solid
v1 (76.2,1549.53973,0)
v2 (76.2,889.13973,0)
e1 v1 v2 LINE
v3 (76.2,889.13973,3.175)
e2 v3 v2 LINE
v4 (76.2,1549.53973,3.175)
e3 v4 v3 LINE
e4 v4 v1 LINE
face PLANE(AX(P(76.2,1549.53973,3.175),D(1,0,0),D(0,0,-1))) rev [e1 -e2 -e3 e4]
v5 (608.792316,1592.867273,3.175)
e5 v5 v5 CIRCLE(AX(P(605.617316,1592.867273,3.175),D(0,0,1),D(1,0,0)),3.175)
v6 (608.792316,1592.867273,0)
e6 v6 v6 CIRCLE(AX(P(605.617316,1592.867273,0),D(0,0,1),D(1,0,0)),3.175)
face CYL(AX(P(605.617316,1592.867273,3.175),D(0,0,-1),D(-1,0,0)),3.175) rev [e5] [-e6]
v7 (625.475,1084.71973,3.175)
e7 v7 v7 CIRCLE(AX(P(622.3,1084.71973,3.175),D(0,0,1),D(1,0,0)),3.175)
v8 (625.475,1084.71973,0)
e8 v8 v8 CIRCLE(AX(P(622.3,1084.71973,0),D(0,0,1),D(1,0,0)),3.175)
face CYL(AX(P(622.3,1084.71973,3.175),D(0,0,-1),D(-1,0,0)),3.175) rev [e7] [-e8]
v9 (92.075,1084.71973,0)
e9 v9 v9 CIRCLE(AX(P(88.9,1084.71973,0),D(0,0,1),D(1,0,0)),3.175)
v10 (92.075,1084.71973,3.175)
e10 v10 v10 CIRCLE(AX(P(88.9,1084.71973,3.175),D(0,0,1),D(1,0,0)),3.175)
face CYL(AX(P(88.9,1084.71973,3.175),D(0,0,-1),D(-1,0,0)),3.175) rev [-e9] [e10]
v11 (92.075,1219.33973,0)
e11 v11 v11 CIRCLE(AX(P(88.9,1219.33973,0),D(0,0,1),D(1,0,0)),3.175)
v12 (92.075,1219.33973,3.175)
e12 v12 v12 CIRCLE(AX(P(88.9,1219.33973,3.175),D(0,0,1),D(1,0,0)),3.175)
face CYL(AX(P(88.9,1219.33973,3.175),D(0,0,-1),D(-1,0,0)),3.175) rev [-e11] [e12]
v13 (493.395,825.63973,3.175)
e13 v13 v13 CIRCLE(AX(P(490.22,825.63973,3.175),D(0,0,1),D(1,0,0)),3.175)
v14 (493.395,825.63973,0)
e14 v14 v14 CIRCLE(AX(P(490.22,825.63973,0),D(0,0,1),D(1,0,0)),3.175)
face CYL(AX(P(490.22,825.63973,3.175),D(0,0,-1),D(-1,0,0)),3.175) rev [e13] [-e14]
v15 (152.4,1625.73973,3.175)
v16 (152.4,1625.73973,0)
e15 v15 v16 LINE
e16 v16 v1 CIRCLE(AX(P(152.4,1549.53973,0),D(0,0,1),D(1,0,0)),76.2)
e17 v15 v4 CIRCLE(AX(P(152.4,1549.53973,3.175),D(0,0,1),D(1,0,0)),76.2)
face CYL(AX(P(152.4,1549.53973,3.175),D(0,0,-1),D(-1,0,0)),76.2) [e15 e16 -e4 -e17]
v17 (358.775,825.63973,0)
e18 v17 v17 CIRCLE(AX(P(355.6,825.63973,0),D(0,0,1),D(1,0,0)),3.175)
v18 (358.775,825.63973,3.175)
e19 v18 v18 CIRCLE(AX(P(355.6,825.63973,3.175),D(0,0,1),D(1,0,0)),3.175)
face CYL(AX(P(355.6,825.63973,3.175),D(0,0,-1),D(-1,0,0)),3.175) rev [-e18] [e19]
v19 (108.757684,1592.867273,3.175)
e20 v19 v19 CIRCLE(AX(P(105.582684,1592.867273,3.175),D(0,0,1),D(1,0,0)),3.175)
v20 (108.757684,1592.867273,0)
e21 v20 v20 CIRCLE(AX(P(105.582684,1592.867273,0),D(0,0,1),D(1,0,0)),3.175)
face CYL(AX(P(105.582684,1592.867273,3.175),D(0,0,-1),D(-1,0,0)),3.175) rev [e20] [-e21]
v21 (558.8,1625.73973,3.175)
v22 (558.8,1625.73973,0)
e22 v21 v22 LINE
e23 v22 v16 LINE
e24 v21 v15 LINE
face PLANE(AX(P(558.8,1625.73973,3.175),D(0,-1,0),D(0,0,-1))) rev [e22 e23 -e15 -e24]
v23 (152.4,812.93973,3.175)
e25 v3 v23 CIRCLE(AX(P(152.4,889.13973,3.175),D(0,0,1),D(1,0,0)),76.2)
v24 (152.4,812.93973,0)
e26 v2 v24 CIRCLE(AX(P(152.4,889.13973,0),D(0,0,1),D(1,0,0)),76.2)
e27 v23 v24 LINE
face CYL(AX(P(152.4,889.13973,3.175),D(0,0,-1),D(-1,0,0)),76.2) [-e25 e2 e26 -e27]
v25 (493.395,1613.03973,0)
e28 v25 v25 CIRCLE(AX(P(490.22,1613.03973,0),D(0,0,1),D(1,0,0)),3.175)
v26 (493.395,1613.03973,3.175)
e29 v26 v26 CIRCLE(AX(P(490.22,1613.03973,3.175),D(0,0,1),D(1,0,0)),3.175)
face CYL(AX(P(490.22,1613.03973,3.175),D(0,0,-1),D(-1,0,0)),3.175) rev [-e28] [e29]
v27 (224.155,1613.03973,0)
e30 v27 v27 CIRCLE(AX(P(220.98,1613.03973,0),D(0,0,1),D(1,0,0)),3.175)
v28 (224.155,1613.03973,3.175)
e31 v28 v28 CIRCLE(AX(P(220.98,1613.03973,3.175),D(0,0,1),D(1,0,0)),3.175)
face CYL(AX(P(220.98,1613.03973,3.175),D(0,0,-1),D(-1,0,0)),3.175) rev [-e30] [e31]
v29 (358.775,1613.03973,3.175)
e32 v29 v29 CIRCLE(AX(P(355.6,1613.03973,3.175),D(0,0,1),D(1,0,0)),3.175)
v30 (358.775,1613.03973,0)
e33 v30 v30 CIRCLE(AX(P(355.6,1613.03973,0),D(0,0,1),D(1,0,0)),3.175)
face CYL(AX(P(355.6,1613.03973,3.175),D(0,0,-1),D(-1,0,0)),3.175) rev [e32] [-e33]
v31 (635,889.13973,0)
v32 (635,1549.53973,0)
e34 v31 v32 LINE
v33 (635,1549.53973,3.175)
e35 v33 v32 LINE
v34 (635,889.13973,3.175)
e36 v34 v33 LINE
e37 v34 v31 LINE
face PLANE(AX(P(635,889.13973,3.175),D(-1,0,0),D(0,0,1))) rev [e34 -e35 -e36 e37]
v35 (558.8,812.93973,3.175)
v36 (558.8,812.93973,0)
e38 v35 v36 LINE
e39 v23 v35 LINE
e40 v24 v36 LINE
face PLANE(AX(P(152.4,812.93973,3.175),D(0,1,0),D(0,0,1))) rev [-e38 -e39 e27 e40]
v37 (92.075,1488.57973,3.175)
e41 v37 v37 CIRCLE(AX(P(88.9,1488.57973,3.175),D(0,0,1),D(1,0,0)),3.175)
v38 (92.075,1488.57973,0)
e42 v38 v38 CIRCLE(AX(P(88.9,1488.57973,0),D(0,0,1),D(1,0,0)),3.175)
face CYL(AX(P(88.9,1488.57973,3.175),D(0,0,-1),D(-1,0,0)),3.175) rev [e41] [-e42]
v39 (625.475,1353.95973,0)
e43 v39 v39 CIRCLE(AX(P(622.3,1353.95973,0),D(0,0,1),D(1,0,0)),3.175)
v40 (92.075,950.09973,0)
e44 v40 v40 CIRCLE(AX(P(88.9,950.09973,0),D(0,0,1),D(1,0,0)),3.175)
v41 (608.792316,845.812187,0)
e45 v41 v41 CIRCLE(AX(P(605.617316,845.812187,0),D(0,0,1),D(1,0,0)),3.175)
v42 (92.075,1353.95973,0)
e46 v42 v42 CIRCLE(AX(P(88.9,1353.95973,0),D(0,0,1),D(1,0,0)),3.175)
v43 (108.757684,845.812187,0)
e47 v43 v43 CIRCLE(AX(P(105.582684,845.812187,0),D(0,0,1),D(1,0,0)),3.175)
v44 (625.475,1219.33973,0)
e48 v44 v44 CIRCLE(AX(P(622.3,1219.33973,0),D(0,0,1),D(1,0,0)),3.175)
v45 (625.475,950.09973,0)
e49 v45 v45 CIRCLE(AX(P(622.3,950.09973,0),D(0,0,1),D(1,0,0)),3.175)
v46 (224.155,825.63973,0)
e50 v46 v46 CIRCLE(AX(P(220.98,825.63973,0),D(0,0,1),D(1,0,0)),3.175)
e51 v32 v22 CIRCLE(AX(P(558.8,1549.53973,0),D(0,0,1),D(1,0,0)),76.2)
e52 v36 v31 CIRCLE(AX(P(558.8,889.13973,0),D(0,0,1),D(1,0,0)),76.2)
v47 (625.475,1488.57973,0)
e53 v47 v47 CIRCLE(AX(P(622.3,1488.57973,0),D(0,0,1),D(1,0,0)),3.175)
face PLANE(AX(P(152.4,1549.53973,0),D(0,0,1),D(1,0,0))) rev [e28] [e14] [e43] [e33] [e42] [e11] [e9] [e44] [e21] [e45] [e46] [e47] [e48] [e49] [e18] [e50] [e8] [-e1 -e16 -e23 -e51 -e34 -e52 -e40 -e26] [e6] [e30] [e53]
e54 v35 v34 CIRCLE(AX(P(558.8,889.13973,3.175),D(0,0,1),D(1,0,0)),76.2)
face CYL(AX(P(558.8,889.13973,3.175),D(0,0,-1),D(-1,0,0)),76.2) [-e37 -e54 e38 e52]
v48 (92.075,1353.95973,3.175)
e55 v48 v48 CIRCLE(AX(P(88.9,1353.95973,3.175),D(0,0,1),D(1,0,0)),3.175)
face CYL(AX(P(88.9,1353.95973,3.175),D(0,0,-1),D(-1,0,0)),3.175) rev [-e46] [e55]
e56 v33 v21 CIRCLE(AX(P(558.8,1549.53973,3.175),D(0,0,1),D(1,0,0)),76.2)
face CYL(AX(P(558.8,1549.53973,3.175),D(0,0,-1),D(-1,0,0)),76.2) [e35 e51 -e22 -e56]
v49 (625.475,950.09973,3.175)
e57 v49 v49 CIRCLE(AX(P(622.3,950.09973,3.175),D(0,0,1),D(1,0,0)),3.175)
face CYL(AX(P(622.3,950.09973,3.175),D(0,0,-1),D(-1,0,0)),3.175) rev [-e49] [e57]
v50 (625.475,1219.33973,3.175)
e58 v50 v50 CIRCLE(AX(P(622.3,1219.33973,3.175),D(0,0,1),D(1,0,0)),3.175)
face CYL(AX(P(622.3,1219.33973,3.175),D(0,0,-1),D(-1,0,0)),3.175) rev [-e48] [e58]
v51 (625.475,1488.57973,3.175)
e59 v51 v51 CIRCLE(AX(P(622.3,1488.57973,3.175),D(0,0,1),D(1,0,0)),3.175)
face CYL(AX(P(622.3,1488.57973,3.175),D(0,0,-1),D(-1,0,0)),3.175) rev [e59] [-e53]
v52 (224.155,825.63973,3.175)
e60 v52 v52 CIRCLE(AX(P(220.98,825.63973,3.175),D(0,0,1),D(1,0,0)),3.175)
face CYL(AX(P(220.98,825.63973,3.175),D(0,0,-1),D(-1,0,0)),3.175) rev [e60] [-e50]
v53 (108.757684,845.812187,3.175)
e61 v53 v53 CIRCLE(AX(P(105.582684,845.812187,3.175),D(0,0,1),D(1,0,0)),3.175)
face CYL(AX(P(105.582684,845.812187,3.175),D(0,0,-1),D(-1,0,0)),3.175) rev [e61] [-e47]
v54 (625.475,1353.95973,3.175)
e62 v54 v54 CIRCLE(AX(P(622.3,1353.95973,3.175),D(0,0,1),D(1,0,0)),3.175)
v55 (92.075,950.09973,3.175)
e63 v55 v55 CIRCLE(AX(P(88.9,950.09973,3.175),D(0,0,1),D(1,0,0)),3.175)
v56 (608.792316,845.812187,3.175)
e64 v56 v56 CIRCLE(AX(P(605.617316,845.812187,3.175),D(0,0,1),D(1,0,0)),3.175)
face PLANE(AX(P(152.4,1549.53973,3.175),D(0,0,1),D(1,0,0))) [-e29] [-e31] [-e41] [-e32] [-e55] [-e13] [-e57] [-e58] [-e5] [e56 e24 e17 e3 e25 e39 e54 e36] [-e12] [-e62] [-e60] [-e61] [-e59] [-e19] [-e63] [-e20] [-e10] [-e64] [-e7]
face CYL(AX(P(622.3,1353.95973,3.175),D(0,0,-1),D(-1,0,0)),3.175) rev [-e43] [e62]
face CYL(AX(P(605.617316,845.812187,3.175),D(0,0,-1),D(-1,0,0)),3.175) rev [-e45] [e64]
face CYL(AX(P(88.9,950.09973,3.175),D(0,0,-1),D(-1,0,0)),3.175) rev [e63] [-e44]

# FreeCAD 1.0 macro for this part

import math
import FreeCAD as App
import Part
import Sketcher
Q = App.Units.Quantity

doc = App.newDocument("Part")
body = doc.addObject("PartDesign::Body", "Body")

# Sketch on XY plane
sketch1 = body.newObject("Sketcher::SketchObject", "Sketch")
sketch1.AttachmentSupport = (doc.getObject("XY_Plane"), [""])
sketch1.MapMode = "FlatFace"
sketch1.addGeometry(Part.LineSegment(App.Vector(76.2, 1549.5, 0), App.Vector(76.2, 889.1, 0)), False)
sketch1.addGeometry(Part.ArcOfCircle(Part.Circle(App.Vector(152.4, 889.1, 0), App.Vector(0, 0, 1), 76.2), math.radians(-180), math.radians(-90)), False)
sketch1.addGeometry(Part.LineSegment(App.Vector(152.4, 812.9, 0), App.Vector(558.8, 812.9, 0)), False)
sketch1.addGeometry(Part.ArcOfCircle(Part.Circle(App.Vector(558.8, 889.1, 0), App.Vector(0, 0, 1), 76.2), math.radians(-90), math.radians(0)), False)
sketch1.addGeometry(Part.LineSegment(App.Vector(635, 889.1, 0), App.Vector(635, 1549.5, 0)), False)
sketch1.addGeometry(Part.ArcOfCircle(Part.Circle(App.Vector(558.8, 1549.5, 0), App.Vector(0, 0, 1), 76.2), math.radians(0), math.radians(90)), False)
sketch1.addGeometry(Part.LineSegment(App.Vector(558.8, 1625.7, 0), App.Vector(152.4, 1625.7, 0)), False)
sketch1.addGeometry(Part.ArcOfCircle(Part.Circle(App.Vector(152.4, 1549.5, 0), App.Vector(0, 0, 1), 76.2), math.radians(90), math.radians(180)), False)
sketch1.addGeometry(Part.Circle(App.Vector(105.6, 845.8, 0), App.Vector(0, 0, 1), 3.2), False)
sketch1.addGeometry(Part.Circle(App.Vector(88.9, 950.1, 0), App.Vector(0, 0, 1), 3.2), False)
sketch1.addGeometry(Part.Circle(App.Vector(221, 825.6, 0), App.Vector(0, 0, 1), 3.2), False)
sketch1.addGeometry(Part.Circle(App.Vector(88.9, 1084.7, 0), App.Vector(0, 0, 1), 3.2), False)
sketch1.addGeometry(Part.Circle(App.Vector(88.9, 1219.3, 0), App.Vector(0, 0, 1), 3.2), False)
sketch1.addGeometry(Part.Circle(App.Vector(355.6, 825.6, 0), App.Vector(0, 0, 1), 3.2), False)
sketch1.addGeometry(Part.Circle(App.Vector(490.2, 825.6, 0), App.Vector(0, 0, 1), 3.2), False)
sketch1.addGeometry(Part.Circle(App.Vector(605.6, 845.8, 0), App.Vector(0, 0, 1), 3.2), False)
sketch1.addGeometry(Part.Circle(App.Vector(622.3, 950.1, 0), App.Vector(0, 0, 1), 3.2), False)
sketch1.addGeometry(Part.Circle(App.Vector(622.3, 1084.7, 0), App.Vector(0, 0, 1), 3.2), False)
sketch1.addGeometry(Part.Circle(App.Vector(622.3, 1219.3, 0), App.Vector(0, 0, 1), 3.2), False)
sketch1.addGeometry(Part.Circle(App.Vector(88.9, 1354, 0), App.Vector(0, 0, 1), 3.2), False)
sketch1.addGeometry(Part.Circle(App.Vector(88.9, 1488.6, 0), App.Vector(0, 0, 1), 3.2), False)
sketch1.addGeometry(Part.Circle(App.Vector(105.6, 1592.9, 0), App.Vector(0, 0, 1), 3.2), False)
sketch1.addGeometry(Part.Circle(App.Vector(221, 1613, 0), App.Vector(0, 0, 1), 3.2), False)
sketch1.addGeometry(Part.Circle(App.Vector(622.3, 1354, 0), App.Vector(0, 0, 1), 3.2), False)
sketch1.addGeometry(Part.Circle(App.Vector(355.6, 1613, 0), App.Vector(0, 0, 1), 3.2), False)
sketch1.addGeometry(Part.Circle(App.Vector(490.2, 1613, 0), App.Vector(0, 0, 1), 3.2), False)
sketch1.addGeometry(Part.Circle(App.Vector(622.3, 1488.6, 0), App.Vector(0, 0, 1), 3.2), False)
sketch1.addGeometry(Part.Circle(App.Vector(605.6, 1592.9, 0), App.Vector(0, 0, 1), 3.2), False)
sketch1.addConstraint(Sketcher.Constraint("Tangent", 0, 2, 1, 1))
sketch1.addConstraint(Sketcher.Constraint("Tangent", 1, 2, 2, 1))
sketch1.addConstraint(Sketcher.Constraint("Tangent", 2, 2, 3, 1))
sketch1.addConstraint(Sketcher.Constraint("Tangent", 3, 2, 4, 1))
sketch1.addConstraint(Sketcher.Constraint("Tangent", 4, 2, 5, 1))
sketch1.addConstraint(Sketcher.Constraint("Tangent", 5, 2, 6, 1))
sketch1.addConstraint(Sketcher.Constraint("Tangent", 6, 2, 7, 1))
sketch1.addConstraint(Sketcher.Constraint("Tangent", 7, 2, 0, 1))
sketch1.addConstraint(Sketcher.Constraint("Vertical", 0))
sketch1.addConstraint(Sketcher.Constraint("Horizontal", 2))
sketch1.addConstraint(Sketcher.Constraint("Vertical", 4))
sketch1.addConstraint(Sketcher.Constraint("Horizontal", 6))
sketch1.addConstraint(Sketcher.Constraint("Equal", 1, 3))
sketch1.addConstraint(Sketcher.Constraint("Equal", 3, 5))
sketch1.addConstraint(Sketcher.Constraint("Equal", 5, 7))
sketch1.addConstraint(Sketcher.Constraint("Equal", 8, 9))
sketch1.addConstraint(Sketcher.Constraint("Equal", 9, 10))
sketch1.addConstraint(Sketcher.Constraint("Equal", 10, 11))
sketch1.addConstraint(Sketcher.Constraint("Equal", 11, 12))
sketch1.addConstraint(Sketcher.Constraint("Equal", 12, 13))
sketch1.addConstraint(Sketcher.Constraint("Equal", 13, 14))
sketch1.addConstraint(Sketcher.Constraint("Equal", 14, 15))
sketch1.addConstraint(Sketcher.Constraint("Equal", 15, 16))
sketch1.addConstraint(Sketcher.Constraint("Equal", 16, 17))
sketch1.addConstraint(Sketcher.Constraint("Equal", 17, 18))
sketch1.addConstraint(Sketcher.Constraint("Equal", 18, 19))
sketch1.addConstraint(Sketcher.Constraint("Equal", 19, 20))
sketch1.addConstraint(Sketcher.Constraint("Equal", 20, 21))
sketch1.addConstraint(Sketcher.Constraint("Equal", 21, 22))
sketch1.addConstraint(Sketcher.Constraint("Equal", 22, 23))
sketch1.addConstraint(Sketcher.Constraint("Equal", 23, 24))
sketch1.addConstraint(Sketcher.Constraint("Equal", 24, 25))
sketch1.addConstraint(Sketcher.Constraint("Equal", 25, 26))
sketch1.addConstraint(Sketcher.Constraint("Equal", 26, 27))
sketch1.addConstraint(Sketcher.Constraint("Horizontal", 10, 3, 13, 3))
sketch1.addConstraint(Sketcher.Constraint("Horizontal", 13, 3, 14, 3))
sketch1.addConstraint(Sketcher.Constraint("Horizontal", 8, 3, 15, 3))
sketch1.addConstraint(Sketcher.Constraint("Horizontal", 9, 3, 16, 3))
sketch1.addConstraint(Sketcher.Constraint("Horizontal", 11, 3, 17, 3))
sketch1.addConstraint(Sketcher.Constraint("Horizontal", 12, 3, 18, 3))
sketch1.addConstraint(Sketcher.Constraint("Horizontal", 19, 3, 23, 3))
sketch1.addConstraint(Sketcher.Constraint("Horizontal", 22, 3, 24, 3))
sketch1.addConstraint(Sketcher.Constraint("Horizontal", 24, 3, 25, 3))
sketch1.addConstraint(Sketcher.Constraint("Horizontal", 20, 3, 26, 3))
sketch1.addConstraint(Sketcher.Constraint("Horizontal", 21, 3, 27, 3))
sketch1.addConstraint(Sketcher.Constraint("Vertical", 9, 3, 11, 3))
sketch1.addConstraint(Sketcher.Constraint("Vertical", 11, 3, 12, 3))
sketch1.addConstraint(Sketcher.Constraint("Vertical", 16, 3, 17, 3))
sketch1.addConstraint(Sketcher.Constraint("Vertical", 17, 3, 18, 3))
sketch1.addConstraint(Sketcher.Constraint("Vertical", 12, 3, 19, 3))
sketch1.addConstraint(Sketcher.Constraint("Vertical", 19, 3, 20, 3))
sketch1.addConstraint(Sketcher.Constraint("Vertical", 8, 3, 21, 3))
sketch1.addConstraint(Sketcher.Constraint("Vertical", 10, 3, 22, 3))
sketch1.addConstraint(Sketcher.Constraint("Vertical", 18, 3, 23, 3))
sketch1.addConstraint(Sketcher.Constraint("Vertical", 13, 3, 24, 3))
sketch1.addConstraint(Sketcher.Constraint("Vertical", 14, 3, 25, 3))
sketch1.addConstraint(Sketcher.Constraint("Vertical", 23, 3, 26, 3))
sketch1.addConstraint(Sketcher.Constraint("Vertical", 15, 3, 27, 3))
sketch1.addConstraint(Sketcher.Constraint("Radius", 1, Q("3 in")))
sketch1.addConstraint(Sketcher.Constraint("Diameter", 8, Q("0.25 in")))
sketch1.addConstraint(Sketcher.Constraint("DistanceX", 2, 1, 2, 2, Q("16 in")))
sketch1.addConstraint(Sketcher.Constraint("DistanceY", 0, 2, 0, 1, Q("26 in")))
sketch1.addConstraint(Sketcher.Constraint("DistanceX", -1, 1, 1, 3, Q("6 in")))
sketch1.addConstraint(Sketcher.Constraint("DistanceX", -1, 1, 13, 3, Q("14 in")))
sketch1.addConstraint(Sketcher.Constraint("DistanceY", 1, 3, 12, 3, Q("13 in")))
sketch1.addConstraint(Sketcher.Constraint("DistanceX", -1, 1, 9, 3, Q("3.5 in")))
sketch1.addConstraint(Sketcher.Constraint("DistanceX", -1, 1, 10, 3, Q("8.7 in")))
sketch1.addConstraint(Sketcher.Constraint("DistanceX", -1, 1, 14, 3, Q("19.3 in")))
sketch1.addConstraint(Sketcher.Constraint("DistanceX", -1, 1, 16, 3, Q("24.5 in")))
sketch1.addConstraint(Sketcher.Constraint("DistanceY", 1, 3, 9, 3, Q("2.4 in")))
sketch1.addConstraint(Sketcher.Constraint("DistanceY", 10, 3, 1, 3, Q("2.5 in")))
sketch1.addConstraint(Sketcher.Constraint("DistanceY", 9, 3, 11, 3, Q("5.3 in")))
sketch1.addConstraint(Sketcher.Constraint("DistanceY", 12, 3, 19, 3, Q("5.3 in")))
sketch1.addConstraint(Sketcher.Constraint("DistanceY", 20, 3, 7, 3, Q("2.4 in")))
sketch1.addConstraint(Sketcher.Constraint("DistanceY", 7, 3, 22, 3, Q("2.5 in")))
sketch1.addConstraint(Sketcher.Constraint("DistanceY", -1, 1, 1, 3, Q("889.13973 mm")))
sketch1.addConstraint(Sketcher.Constraint("DistanceX", -1, 1, 8, 3, Q("105.582684 mm")))
sketch1.addConstraint(Sketcher.Constraint("DistanceY", -1, 1, 8, 3, Q("845.812187 mm")))
sketch1.addConstraint(Sketcher.Constraint("DistanceX", -1, 1, 15, 3, Q("605.617316 mm")))
sketch1.addConstraint(Sketcher.Constraint("DistanceY", -1, 1, 21, 3, Q("1592.867273 mm")))
pad1 = body.newObject("PartDesign::Pad", "Pad")
pad1.Profile = sketch1
pad1.Length = Q("0.125 in")

doc.recompute()
